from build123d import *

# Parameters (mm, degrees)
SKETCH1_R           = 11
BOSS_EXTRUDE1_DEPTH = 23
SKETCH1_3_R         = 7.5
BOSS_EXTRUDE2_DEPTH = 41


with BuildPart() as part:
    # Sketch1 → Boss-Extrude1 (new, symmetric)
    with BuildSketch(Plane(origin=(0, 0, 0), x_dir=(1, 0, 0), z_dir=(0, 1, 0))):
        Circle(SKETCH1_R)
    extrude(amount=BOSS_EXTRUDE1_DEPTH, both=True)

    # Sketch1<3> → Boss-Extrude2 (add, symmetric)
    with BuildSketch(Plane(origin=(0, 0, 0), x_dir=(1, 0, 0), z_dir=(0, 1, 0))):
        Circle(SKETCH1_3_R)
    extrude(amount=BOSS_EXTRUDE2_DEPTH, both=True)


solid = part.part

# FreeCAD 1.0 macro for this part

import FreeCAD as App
import Part
import Sketcher

V = App.Vector

doc = App.newDocument("Part")
body = doc.addObject("PartDesign::Body", "Body")

# Sketch on XZ plane
sketch1 = doc.addObject("Sketcher::SketchObject", "Sketch")
body.addObject(sketch1)
sketch1.AttachmentSupport = (doc.XZ_Plane, [""])
sketch1.MapMode = "FlatFace"
sketch1.addGeometry(Part.Circle(V(0, 0, 0), V(0, 0, 1), 11), False)
sketch1.addConstraint([
    Sketcher.Constraint("Coincident", 0, 3, -1, 1),
    Sketcher.Constraint("Diameter", 0, 22.0),
])
pad1 = doc.addObject("PartDesign::Pad", "Pad")
body.addObject(pad1)
pad1.Profile = sketch1
pad1.Length = 46
pad1.Midplane = True

# Sketch on XZ plane
sketch2 = doc.addObject("Sketcher::SketchObject", "Sketch001")
body.addObject(sketch2)
sketch2.AttachmentSupport = (doc.XZ_Plane, [""])
sketch2.MapMode = "FlatFace"
sketch2.addGeometry(Part.Circle(V(0, 0, 0), V(0, 0, 1), 7.5), False)
sketch2.addConstraint([
    Sketcher.Constraint("Coincident", 0, 3, -1, 1),
    Sketcher.Constraint("Diameter", 0, 15.0),
])
pad2 = doc.addObject("PartDesign::Pad", "Pad001")
body.addObject(pad2)
pad2.Profile = sketch2
pad2.Length = 82
pad2.Midplane = True

doc.recompute()
